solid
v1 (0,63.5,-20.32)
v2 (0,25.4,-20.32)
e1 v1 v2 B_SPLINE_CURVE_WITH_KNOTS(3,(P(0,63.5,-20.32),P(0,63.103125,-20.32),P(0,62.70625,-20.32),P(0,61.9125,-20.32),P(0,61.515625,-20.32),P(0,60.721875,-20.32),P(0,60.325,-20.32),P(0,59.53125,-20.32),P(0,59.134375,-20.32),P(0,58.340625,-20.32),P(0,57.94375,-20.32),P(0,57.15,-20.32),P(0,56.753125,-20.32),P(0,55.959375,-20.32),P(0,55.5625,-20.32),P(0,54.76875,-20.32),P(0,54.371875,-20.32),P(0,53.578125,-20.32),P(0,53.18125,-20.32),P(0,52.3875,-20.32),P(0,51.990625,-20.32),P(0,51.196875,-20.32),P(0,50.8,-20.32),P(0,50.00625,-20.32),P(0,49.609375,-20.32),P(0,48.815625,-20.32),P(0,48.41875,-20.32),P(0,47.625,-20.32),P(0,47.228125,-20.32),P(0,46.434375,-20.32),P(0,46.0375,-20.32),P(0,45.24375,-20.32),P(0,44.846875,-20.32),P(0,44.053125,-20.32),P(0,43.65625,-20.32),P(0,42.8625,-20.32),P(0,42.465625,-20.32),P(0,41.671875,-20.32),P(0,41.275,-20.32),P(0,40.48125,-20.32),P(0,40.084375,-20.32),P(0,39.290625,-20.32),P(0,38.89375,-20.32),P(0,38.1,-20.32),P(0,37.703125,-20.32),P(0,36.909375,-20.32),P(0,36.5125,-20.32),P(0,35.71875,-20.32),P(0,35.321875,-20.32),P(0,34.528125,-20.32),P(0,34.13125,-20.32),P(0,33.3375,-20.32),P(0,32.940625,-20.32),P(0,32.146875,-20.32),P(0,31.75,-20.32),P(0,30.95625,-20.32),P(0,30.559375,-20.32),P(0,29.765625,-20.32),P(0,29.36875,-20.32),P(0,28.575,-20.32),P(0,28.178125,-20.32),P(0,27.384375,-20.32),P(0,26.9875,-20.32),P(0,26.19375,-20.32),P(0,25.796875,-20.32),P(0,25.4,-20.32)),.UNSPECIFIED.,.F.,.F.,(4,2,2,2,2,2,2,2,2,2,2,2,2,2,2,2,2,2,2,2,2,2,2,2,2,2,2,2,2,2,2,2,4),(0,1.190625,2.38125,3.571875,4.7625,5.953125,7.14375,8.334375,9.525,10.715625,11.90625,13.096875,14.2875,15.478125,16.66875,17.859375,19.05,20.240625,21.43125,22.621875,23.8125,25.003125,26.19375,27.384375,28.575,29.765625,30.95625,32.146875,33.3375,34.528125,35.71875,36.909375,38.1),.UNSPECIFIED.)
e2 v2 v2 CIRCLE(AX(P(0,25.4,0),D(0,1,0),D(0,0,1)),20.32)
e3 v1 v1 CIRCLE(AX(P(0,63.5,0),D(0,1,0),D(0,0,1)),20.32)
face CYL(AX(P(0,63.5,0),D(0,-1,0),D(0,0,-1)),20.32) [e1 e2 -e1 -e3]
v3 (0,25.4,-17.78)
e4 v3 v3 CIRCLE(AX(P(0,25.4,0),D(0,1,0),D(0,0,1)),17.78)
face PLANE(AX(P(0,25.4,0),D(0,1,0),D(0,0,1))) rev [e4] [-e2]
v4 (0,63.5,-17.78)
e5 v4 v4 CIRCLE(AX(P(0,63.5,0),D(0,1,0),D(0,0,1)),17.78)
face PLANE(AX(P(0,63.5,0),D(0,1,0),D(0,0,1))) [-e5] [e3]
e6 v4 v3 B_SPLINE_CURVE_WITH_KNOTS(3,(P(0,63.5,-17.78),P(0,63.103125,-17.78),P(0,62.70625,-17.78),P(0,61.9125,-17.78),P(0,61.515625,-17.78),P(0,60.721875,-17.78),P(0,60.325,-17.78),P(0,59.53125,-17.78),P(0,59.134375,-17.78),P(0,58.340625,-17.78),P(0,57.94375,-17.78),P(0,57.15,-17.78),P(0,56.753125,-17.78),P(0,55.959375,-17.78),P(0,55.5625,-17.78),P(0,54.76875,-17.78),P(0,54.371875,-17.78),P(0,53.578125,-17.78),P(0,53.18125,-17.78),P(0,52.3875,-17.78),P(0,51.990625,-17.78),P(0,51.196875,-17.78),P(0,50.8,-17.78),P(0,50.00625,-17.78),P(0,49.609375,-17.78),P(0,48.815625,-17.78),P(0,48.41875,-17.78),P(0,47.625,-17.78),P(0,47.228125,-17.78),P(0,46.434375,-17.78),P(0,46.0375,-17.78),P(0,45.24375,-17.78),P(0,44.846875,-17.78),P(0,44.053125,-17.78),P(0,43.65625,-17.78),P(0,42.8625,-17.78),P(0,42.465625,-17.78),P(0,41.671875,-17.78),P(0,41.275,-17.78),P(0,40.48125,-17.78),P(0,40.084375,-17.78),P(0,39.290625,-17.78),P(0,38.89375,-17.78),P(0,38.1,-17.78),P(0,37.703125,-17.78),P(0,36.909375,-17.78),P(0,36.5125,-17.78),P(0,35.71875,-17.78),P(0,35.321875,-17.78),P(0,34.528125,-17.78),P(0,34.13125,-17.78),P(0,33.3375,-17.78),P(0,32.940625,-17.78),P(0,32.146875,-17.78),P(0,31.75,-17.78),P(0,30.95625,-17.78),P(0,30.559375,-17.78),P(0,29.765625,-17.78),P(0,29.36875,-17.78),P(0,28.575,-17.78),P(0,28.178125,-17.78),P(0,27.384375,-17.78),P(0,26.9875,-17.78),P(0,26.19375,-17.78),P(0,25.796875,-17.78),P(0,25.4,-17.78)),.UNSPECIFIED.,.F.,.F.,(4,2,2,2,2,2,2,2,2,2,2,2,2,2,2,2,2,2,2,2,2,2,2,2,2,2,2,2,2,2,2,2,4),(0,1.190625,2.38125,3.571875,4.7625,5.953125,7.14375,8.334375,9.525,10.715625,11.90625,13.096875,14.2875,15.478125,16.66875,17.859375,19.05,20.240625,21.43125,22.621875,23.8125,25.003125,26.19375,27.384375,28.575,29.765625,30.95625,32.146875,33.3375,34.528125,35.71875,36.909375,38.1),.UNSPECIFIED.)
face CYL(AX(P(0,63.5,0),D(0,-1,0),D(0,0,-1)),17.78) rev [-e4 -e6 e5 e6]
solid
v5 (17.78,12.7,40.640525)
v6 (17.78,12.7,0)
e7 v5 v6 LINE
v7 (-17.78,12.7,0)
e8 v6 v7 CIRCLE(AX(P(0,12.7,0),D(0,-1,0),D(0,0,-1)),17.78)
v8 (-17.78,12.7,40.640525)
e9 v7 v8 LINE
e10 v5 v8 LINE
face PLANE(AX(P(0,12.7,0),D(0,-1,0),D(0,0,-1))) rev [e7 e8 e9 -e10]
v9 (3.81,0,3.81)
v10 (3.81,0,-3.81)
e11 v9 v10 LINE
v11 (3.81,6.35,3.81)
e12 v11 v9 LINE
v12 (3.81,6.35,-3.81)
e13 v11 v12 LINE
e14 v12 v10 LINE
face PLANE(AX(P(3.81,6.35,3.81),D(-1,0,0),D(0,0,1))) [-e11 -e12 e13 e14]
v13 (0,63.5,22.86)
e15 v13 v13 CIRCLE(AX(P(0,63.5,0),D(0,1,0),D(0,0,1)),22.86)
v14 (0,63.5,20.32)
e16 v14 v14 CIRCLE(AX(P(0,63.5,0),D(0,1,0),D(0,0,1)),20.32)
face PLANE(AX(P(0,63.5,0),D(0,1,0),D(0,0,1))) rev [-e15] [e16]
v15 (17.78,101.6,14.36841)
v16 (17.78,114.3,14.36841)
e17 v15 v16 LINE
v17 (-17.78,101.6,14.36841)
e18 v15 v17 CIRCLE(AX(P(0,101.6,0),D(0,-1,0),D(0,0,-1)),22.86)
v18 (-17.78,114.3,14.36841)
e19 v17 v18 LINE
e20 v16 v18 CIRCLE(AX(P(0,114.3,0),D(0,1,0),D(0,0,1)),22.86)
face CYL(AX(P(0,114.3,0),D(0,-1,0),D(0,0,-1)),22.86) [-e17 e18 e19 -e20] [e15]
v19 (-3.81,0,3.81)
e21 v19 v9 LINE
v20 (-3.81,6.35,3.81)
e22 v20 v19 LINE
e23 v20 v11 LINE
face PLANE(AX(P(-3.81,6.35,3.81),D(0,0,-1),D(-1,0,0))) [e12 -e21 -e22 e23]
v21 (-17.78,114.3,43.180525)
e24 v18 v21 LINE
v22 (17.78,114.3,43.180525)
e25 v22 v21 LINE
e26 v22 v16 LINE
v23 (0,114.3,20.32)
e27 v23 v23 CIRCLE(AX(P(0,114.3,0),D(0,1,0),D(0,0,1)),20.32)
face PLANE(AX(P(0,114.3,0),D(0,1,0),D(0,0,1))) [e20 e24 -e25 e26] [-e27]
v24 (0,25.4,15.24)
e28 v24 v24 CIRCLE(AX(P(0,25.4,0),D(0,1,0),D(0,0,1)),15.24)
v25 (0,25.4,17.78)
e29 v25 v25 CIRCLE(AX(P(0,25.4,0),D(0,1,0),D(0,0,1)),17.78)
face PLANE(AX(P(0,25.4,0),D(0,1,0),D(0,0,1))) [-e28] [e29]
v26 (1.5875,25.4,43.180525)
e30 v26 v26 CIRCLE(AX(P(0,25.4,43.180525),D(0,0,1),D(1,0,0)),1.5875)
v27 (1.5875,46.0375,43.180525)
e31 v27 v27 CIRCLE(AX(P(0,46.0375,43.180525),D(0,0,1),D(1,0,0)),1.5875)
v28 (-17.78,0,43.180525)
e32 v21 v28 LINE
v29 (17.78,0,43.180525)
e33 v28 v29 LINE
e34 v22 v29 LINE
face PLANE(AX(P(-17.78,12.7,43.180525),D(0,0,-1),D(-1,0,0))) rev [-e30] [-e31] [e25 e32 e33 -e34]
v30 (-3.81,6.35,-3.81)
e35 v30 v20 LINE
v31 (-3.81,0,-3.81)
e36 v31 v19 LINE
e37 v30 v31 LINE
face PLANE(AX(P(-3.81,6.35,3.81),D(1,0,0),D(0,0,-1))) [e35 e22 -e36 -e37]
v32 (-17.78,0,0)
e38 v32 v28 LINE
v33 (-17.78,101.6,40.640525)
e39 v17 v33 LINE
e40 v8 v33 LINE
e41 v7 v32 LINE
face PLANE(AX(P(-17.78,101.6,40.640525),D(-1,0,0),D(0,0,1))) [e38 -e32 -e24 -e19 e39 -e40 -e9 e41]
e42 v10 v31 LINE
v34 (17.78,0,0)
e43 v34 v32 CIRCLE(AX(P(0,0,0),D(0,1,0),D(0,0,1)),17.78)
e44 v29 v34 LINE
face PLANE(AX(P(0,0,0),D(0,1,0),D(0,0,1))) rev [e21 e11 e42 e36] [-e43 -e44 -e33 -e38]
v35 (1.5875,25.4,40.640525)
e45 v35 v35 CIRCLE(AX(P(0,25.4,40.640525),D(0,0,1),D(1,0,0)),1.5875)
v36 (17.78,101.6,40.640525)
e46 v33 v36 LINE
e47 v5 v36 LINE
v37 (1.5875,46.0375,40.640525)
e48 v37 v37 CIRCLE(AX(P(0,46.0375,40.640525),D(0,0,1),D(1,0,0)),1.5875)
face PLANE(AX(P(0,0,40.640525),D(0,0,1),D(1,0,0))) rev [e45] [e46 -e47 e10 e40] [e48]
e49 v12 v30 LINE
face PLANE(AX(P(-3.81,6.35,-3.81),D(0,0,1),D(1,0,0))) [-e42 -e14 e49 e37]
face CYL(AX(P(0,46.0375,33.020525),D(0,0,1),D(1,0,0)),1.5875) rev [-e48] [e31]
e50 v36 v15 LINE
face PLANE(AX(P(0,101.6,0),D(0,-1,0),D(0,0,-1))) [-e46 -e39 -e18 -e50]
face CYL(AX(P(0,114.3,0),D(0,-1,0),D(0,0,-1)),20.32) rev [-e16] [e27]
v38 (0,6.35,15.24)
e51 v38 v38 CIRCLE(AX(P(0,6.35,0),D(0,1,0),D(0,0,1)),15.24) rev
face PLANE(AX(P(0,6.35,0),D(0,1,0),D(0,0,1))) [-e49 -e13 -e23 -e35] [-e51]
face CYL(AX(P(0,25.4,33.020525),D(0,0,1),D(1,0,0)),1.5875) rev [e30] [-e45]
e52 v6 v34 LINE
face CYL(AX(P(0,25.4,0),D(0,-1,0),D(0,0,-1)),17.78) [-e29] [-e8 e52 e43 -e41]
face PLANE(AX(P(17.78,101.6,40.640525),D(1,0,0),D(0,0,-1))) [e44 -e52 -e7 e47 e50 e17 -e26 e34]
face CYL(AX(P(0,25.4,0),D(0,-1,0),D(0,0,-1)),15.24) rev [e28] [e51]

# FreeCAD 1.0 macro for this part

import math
import FreeCAD as App
import Part
import Sketcher
Q = App.Units.Quantity

doc = App.newDocument("Part")
body = doc.addObject("PartDesign::Body", "Body")

# Sketch on XZ plane
sketch1 = body.newObject("Sketcher::SketchObject", "Sketch")
sketch1.AttachmentSupport = (doc.getObject("XZ_Plane"), [""])
sketch1.MapMode = "FlatFace"
sketch1.addGeometry(Part.Circle(App.Vector(0, 0, 0), App.Vector(0, 0, 1), 15), False)
sketch1.addGeometry(Part.LineSegment(App.Vector(4, 4, 0), App.Vector(-4, 4, 0)), False)
sketch1.addGeometry(Part.LineSegment(App.Vector(-4, 4, 0), App.Vector(-4, -4, 0)), False)
sketch1.addGeometry(Part.LineSegment(App.Vector(-4, -4, 0), App.Vector(4, -4, 0)), False)
sketch1.addGeometry(Part.LineSegment(App.Vector(4, -4, 0), App.Vector(4, 4, 0)), False)
sketch1.addConstraint(Sketcher.Constraint("Coincident", 1, 2, 2, 1))
sketch1.addConstraint(Sketcher.Constraint("Coincident", 2, 2, 3, 1))
sketch1.addConstraint(Sketcher.Constraint("Coincident", 3, 2, 4, 1))
sketch1.addConstraint(Sketcher.Constraint("Coincident", 4, 2, 1, 1))
sketch1.addConstraint(Sketcher.Constraint("Horizontal", 1))
sketch1.addConstraint(Sketcher.Constraint("Vertical", 2))
sketch1.addConstraint(Sketcher.Constraint("Horizontal", 3))
sketch1.addConstraint(Sketcher.Constraint("Vertical", 4))
sketch1.addConstraint(Sketcher.Constraint("Coincident", 0, 3, -1, 1))
sketch1.addConstraint(Sketcher.Constraint("Symmetric", 1, 2, 3, 2, -1, 1))
sketch1.addConstraint(Sketcher.Constraint("Equal", 3, 2))
sketch1.addConstraint(Sketcher.Constraint("Diameter", 0, Q("1.2 in")))
sketch1.addConstraint(Sketcher.Constraint("DistanceX", 1, 2, 1, 1, Q("0.3 in")))
pad1 = body.newObject("PartDesign::Pad", "Pad")
pad1.Profile = sketch1
pad1.Length = Q("0.25 in")
pad1.Reversed = True

# Sketch on XZ plane
sketch2 = body.newObject("Sketcher::SketchObject", "Sketch001")
sketch2.AttachmentSupport = (doc.getObject("XZ_Plane"), [""])
sketch2.MapMode = "FlatFace"
sketch2.addGeometry(Part.Circle(App.Vector(0, 0, 0), App.Vector(0, 0, 1), 18), False)
sketch2.addGeometry(Part.Circle(App.Vector(0, 0, 0), App.Vector(0, 0, 1), 15), False)
sketch2.addConstraint(Sketcher.Constraint("Coincident", 0, 3, -1, 1))
sketch2.addConstraint(Sketcher.Constraint("Coincident", 1, 3, -1, 1))
sketch2.addConstraint(Sketcher.Constraint("Diameter", 0, Q("1.4 in")))
sketch2.addConstraint(Sketcher.Constraint("Diameter", 1, Q("1.2 in")))
pad2 = body.newObject("PartDesign::Pad", "Pad001")
pad2.Profile = sketch2
pad2.Length = Q("1 in")
pad2.Reversed = True

# Sketch on XZ plane
sketch3 = body.newObject("Sketcher::SketchObject", "Sketch002")
sketch3.AttachmentSupport = (doc.getObject("XZ_Plane"), [""])
sketch3.MapMode = "FlatFace"
sketch3.addGeometry(Part.LineSegment(App.Vector(-18, 43, 0), App.Vector(18, 43, 0)), False)
sketch3.addGeometry(Part.LineSegment(App.Vector(18, 43, 0), App.Vector(18, 0, 0)), False)
sketch3.addGeometry(Part.ArcOfCircle(Part.Circle(App.Vector(0, 0, 0), App.Vector(0, 0, 1), 18), math.radians(0), math.radians(180)), False)
sketch3.addGeometry(Part.LineSegment(App.Vector(-18, 0, 0), App.Vector(-18, 43, 0)), False)
sketch3.addConstraint(Sketcher.Constraint("Coincident", 0, 2, 1, 1))
sketch3.addConstraint(Sketcher.Constraint("Tangent", 1, 2, 2, 1))
sketch3.addConstraint(Sketcher.Constraint("Tangent", 2, 2, 3, 1))
sketch3.addConstraint(Sketcher.Constraint("Coincident", 3, 2, 0, 1))
sketch3.addConstraint(Sketcher.Constraint("Horizontal", 0))
sketch3.addConstraint(Sketcher.Constraint("Vertical", 1))
sketch3.addConstraint(Sketcher.Constraint("Vertical", 3))
sketch3.addConstraint(Sketcher.Constraint("Coincident", 2, 3, -1, 1))
sketch3.addConstraint(Sketcher.Constraint("Radius", 2, Q("0.7 in")))
sketch3.addConstraint(Sketcher.Constraint("DistanceY", 1, 2, 1, 1, Q("43.180525 mm")))
pad3 = body.newObject("PartDesign::Pad", "Pad002")
pad3.Profile = sketch3
pad3.Length = Q("0.5 in")
pad3.Reversed = True

# Sketch on XY plane
sketch4 = body.newObject("Sketcher::SketchObject", "Sketch003")
sketch4.AttachmentSupport = (doc.getObject("XY_Plane"), [""])
sketch4.MapMode = "FlatFace"
sketch4.AttachmentOffset = App.Placement(App.Vector(0, 0, 43.180525), App.Rotation())
sketch4.addGeometry(Part.LineSegment(App.Vector(-18, 114, 0), App.Vector(-18, 0, 0)), False)
sketch4.addGeometry(Part.LineSegment(App.Vector(-18, 0, 0), App.Vector(18, 0, 0)), False)
sketch4.addGeometry(Part.LineSegment(App.Vector(18, 0, 0), App.Vector(18, 114, 0)), False)
sketch4.addGeometry(Part.LineSegment(App.Vector(18, 114, 0), App.Vector(-18, 114, 0)), False)
sketch4.addConstraint(Sketcher.Constraint("Coincident", 0, 2, 1, 1))
sketch4.addConstraint(Sketcher.Constraint("Coincident", 1, 2, 2, 1))
sketch4.addConstraint(Sketcher.Constraint("Coincident", 2, 2, 3, 1))
sketch4.addConstraint(Sketcher.Constraint("Coincident", 3, 2, 0, 1))
sketch4.addConstraint(Sketcher.Constraint("Vertical", 0))
sketch4.addConstraint(Sketcher.Constraint("Horizontal", 1))
sketch4.addConstraint(Sketcher.Constraint("Vertical", 2))
sketch4.addConstraint(Sketcher.Constraint("Horizontal", 3))
sketch4.addConstraint(Sketcher.Constraint("Symmetric", 0, 2, 1, 2, -1, 1))
sketch4.addConstraint(Sketcher.Constraint("DistanceX", 1, 1, 1, 2, Q("1.4 in")))
sketch4.addConstraint(Sketcher.Constraint("DistanceY", 0, 2, 0, 1, Q("4.5 in")))
pad4 = body.newObject("PartDesign::Pad", "Pad003")
pad4.Profile = sketch4
pad4.Length = Q("0.1 in")
pad4.Reversed = True
body2 = doc.addObject("PartDesign::Body", "Body001")

# Sketch on XZ plane
sketch5 = body2.newObject("Sketcher::SketchObject", "Sketch004")
sketch5.AttachmentSupport = (doc.getObject("XZ_Plane001"), [""])
sketch5.MapMode = "FlatFace"
sketch5.AttachmentOffset = App.Placement(App.Vector(0, 0, -1 * 25.4), App.Rotation())
sketch5.addGeometry(Part.Circle(App.Vector(0, 0, 0), App.Vector(0, 0, 1), 20), False)
sketch5.addGeometry(Part.Circle(App.Vector(0, 0, 0), App.Vector(0, 0, 1), 18), False)
sketch5.addConstraint(Sketcher.Constraint("Coincident", 0, 3, -1, 1))
sketch5.addConstraint(Sketcher.Constraint("Coincident", 1, 3, -1, 1))
sketch5.addConstraint(Sketcher.Constraint("Diameter", 0, Q("1.6 in")))
sketch5.addConstraint(Sketcher.Constraint("Diameter", 1, Q("1.4 in")))
pad5 = body2.newObject("PartDesign::Pad", "Pad004")
pad5.Profile = sketch5
pad5.Length = Q("1.5 in")
pad5.Reversed = True
body3 = doc.addObject("PartDesign::Body", "Body002")

# Sketch on XZ plane
sketch6 = body3.newObject("Sketcher::SketchObject", "Sketch005")
sketch6.AttachmentSupport = (doc.getObject("XZ_Plane002"), [""])
sketch6.MapMode = "FlatFace"
sketch6.AttachmentOffset = App.Placement(App.Vector(0, 0, -2.5 * 25.4), App.Rotation())
sketch6.addGeometry(Part.Circle(App.Vector(0, 0, 0), App.Vector(0, 0, 1), 23), False)
sketch6.addGeometry(Part.Circle(App.Vector(0, 0, 0), App.Vector(0, 0, 1), 20), False)
sketch6.addConstraint(Sketcher.Constraint("Coincident", 0, 3, -1, 1))
sketch6.addConstraint(Sketcher.Constraint("Coincident", 1, 3, -1, 1))
sketch6.addConstraint(Sketcher.Constraint("Diameter", 0, Q("1.8 in")))
sketch6.addConstraint(Sketcher.Constraint("Diameter", 1, Q("1.6 in")))
pad6 = body3.newObject("PartDesign::Pad", "Pad005")
pad6.Profile = sketch6
pad6.Length = Q("2 in")
pad6.Reversed = True
body.AllowCompound = True
doc.recompute()

boolean = body.newObject("PartDesign::Boolean", "Boolean")
boolean.Type = "Fuse"
boolean.addObjects([body3])

# Sketch on XZ plane
sketch7 = body.newObject("Sketcher::SketchObject", "Sketch006")
sketch7.AttachmentSupport = (doc.getObject("XZ_Plane"), [""])
sketch7.MapMode = "FlatFace"
sketch7.AttachmentOffset = App.Placement(App.Vector(0, 0, -4.5 * 25.4), App.Rotation())
sketch7.addGeometry(Part.LineSegment(App.Vector(-18, 14, 0), App.Vector(-18, 41, 0)), False)
sketch7.addGeometry(Part.LineSegment(App.Vector(-18, 41, 0), App.Vector(18, 41, 0)), False)
sketch7.addGeometry(Part.LineSegment(App.Vector(18, 41, 0), App.Vector(18, 14, 0)), False)
sketch7.addGeometry(Part.ArcOfCircle(Part.Circle(App.Vector(0, 0, 0), App.Vector(0, 0, 1), 23), math.radians(39), math.radians(141)), False)
sketch7.addConstraint(Sketcher.Constraint("Coincident", 0, 2, 1, 1))
sketch7.addConstraint(Sketcher.Constraint("Coincident", 1, 2, 2, 1))
sketch7.addConstraint(Sketcher.Constraint("Coincident", 2, 2, 3, 1))
sketch7.addConstraint(Sketcher.Constraint("Coincident", 3, 2, 0, 1))
sketch7.addConstraint(Sketcher.Constraint("Vertical", 0))
sketch7.addConstraint(Sketcher.Constraint("Horizontal", 1))
sketch7.addConstraint(Sketcher.Constraint("Vertical", 2))
sketch7.addConstraint(Sketcher.Constraint("Coincident", 3, 3, -1, 1))
sketch7.addConstraint(Sketcher.Constraint("Horizontal", 2, 2, 3, 2))
sketch7.addConstraint(Sketcher.Constraint("Radius", 3, Q("0.9 in")))
sketch7.addConstraint(Sketcher.Constraint("DistanceX", 1, 1, 1, 2, Q("1.4 in")))
sketch7.addConstraint(Sketcher.Constraint("DistanceY", 0, 1, 0, 2, Q("26.272115 mm")))
pad7 = body.newObject("PartDesign::Pad", "Pad006")
pad7.Profile = sketch7
pad7.Length = Q("0.5 in")

# Sketch on XY plane
sketch8 = body.newObject("Sketcher::SketchObject", "Sketch007")
sketch8.AttachmentSupport = (doc.getObject("XY_Plane"), [""])
sketch8.MapMode = "FlatFace"
sketch8.AttachmentOffset = App.Placement(App.Vector(0, 0, 43.180525), App.Rotation())
sketch8.addGeometry(Part.Circle(App.Vector(0, 25.4, 0), App.Vector(0, 0, 1), 1.6), False)
sketch8.addGeometry(Part.Circle(App.Vector(0, 46, 0), App.Vector(0, 0, 1), 1.6), False)
sketch8.addConstraint(Sketcher.Constraint("Equal", 0, 1))
sketch8.addConstraint(Sketcher.Constraint("PointOnObject", 0, 3, -2))
sketch8.addConstraint(Sketcher.Constraint("PointOnObject", 1, 3, -2))
sketch8.addConstraint(Sketcher.Constraint("Diameter", 0, Q("0.125 in")))
sketch8.addConstraint(Sketcher.Constraint("DistanceY", -1, 1, 0, 3, Q("1 in")))
sketch8.addConstraint(Sketcher.Constraint("DistanceY", -1, 1, 1, 3, Q("1.8125 in")))
pocket1 = body.newObject("PartDesign::Pocket", "Pocket")
pocket1.Profile = sketch8
pocket1.Length = Q("0.4 in")

doc.recompute()
